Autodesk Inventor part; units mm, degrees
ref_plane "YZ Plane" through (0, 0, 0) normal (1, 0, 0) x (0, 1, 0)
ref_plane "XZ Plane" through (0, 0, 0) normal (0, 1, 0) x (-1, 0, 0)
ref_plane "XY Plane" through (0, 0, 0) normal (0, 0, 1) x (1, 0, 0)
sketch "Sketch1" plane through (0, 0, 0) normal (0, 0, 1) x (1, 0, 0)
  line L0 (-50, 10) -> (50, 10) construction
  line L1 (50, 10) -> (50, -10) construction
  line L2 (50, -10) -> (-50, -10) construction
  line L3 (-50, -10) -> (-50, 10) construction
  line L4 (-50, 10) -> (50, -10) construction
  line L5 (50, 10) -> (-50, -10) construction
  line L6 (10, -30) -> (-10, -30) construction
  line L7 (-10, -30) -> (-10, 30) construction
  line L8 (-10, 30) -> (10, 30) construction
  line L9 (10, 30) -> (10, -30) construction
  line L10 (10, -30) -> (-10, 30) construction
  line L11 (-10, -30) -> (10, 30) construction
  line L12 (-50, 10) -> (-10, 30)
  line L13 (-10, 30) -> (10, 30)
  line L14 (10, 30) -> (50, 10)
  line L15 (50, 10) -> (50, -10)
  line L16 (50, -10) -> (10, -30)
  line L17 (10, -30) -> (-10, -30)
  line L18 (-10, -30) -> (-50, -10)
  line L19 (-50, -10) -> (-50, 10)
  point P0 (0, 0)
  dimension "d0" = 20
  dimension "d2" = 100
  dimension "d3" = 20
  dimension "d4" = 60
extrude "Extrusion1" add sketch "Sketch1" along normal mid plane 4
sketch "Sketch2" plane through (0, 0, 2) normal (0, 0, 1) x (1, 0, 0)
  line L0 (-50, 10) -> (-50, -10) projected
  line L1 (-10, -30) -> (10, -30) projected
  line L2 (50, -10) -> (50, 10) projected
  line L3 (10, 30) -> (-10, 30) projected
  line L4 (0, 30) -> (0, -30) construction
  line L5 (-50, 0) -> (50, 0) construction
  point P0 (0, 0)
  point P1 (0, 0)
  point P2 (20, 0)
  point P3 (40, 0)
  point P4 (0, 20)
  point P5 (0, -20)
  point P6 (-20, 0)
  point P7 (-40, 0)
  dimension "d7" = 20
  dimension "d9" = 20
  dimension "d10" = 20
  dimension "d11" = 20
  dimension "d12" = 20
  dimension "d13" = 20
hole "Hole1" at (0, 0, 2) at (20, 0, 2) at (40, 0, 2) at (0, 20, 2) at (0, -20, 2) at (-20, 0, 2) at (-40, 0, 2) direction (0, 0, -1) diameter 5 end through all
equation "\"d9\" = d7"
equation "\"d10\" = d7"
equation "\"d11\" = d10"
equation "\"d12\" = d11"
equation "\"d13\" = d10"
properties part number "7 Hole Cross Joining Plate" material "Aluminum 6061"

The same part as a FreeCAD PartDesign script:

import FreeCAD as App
import Part
import Sketcher
from FreeCAD import Vector

doc = App.newDocument("Part")
params = doc.addObject("Spreadsheet::Sheet", "Params")
for row, (alias, value) in enumerate([
    ("sketch1_width", "20 mm"),
    ("pad1_length", "4 mm"),
    ("sketch2_diameter", "5 mm"),
    ("hole_diameter", "5 mm"),
], start=1):
    params.set(f"A{row}", alias)
    params.set(f"B{row}", "=" + value)
    params.setAlias(f"B{row}", alias)

body = doc.addObject("PartDesign::Body", "Body")

sketch1 = body.newObject("Sketcher::SketchObject", "Sketch")
sketch1.AttachmentSupport = (doc.getObject("XY_Plane"), [""])
sketch1.MapMode = "FlatFace"
sketch1.addGeometry([
    Part.LineSegment(Vector(-10, 30, 0), Vector(-50, 10, 0)),
    Part.LineSegment(Vector(-50, 10, 0), Vector(-50, -10, 0)),
    Part.LineSegment(Vector(-50, -10, 0), Vector(-10, -30, 0)),
    Part.LineSegment(Vector(-10, -30, 0), Vector(10, -30, 0)),
    Part.LineSegment(Vector(10, -30, 0), Vector(50, -10, 0)),
    Part.LineSegment(Vector(50, -10, 0), Vector(50, 10, 0)),
    Part.LineSegment(Vector(50, 10, 0), Vector(10, 30, 0)),
    Part.LineSegment(Vector(10, 30, 0), Vector(-10, 30, 0)),
], False)
sketch1.addConstraint([
    Sketcher.Constraint("Coincident", 0, 2, 1, 1),
    Sketcher.Constraint("Coincident", 1, 2, 2, 1),
    Sketcher.Constraint("Coincident", 2, 2, 3, 1),
    Sketcher.Constraint("Coincident", 3, 2, 4, 1),
    Sketcher.Constraint("Coincident", 4, 2, 5, 1),
    Sketcher.Constraint("Coincident", 5, 2, 6, 1),
    Sketcher.Constraint("Coincident", 6, 2, 7, 1),
    Sketcher.Constraint("Coincident", 7, 2, 0, 1),
    Sketcher.Constraint("Vertical", 1),
    Sketcher.Constraint("Horizontal", 3),
    Sketcher.Constraint("Vertical", 5),
    Sketcher.Constraint("Horizontal", 7),
    Sketcher.Constraint("Symmetric", 0, 2, 4, 2, -1, 1),
    Sketcher.Constraint("Symmetric", 2, 2, 6, 2, -1, 1),
    Sketcher.Constraint("Parallel", 0, 4),
    Sketcher.Constraint("Parallel", 2, 6),
    Sketcher.Constraint("Horizontal", 1, 2, 4, 2),
    Sketcher.Constraint("Vertical", 3, 2, 6, 2),
    Sketcher.Constraint("Equal", 7, 1),
    Sketcher.Constraint("DistanceX", 3, 1, 3, 2, 20.0),
    Sketcher.Constraint("DistanceY", 2, 2, 1, 2, 20.0),
    Sketcher.Constraint("DistanceX", 1, 2, 3, 2, 60.0),
])
sketch1.setExpression("Constraints[19]", "Params.sketch1_width")
pad1 = body.newObject("PartDesign::Pad", "Pad")
pad1.Profile = sketch1
pad1.setExpression("Length", "Params.pad1_length")
pad1.Midplane = True

sketch2 = body.newObject("Sketcher::SketchObject", "Sketch001")
sketch2.AttachmentSupport = (doc.getObject("XY_Plane"), [""])
sketch2.MapMode = "FlatFace"
sketch2.AttachmentOffset = App.Placement(Vector(0, 0, 2), App.Rotation())
sketch2.addGeometry([
    Part.Circle(Vector(0, 0, 0), Vector(0, 0, 1), 2.5),
    Part.Circle(Vector(20, 0, 0), Vector(0, 0, 1), 2.5),
    Part.Circle(Vector(40, 0, 0), Vector(0, 0, 1), 2.5),
    Part.Circle(Vector(0, 20, 0), Vector(0, 0, 1), 2.5),
    Part.Circle(Vector(0, -20, 0), Vector(0, 0, 1), 2.5),
    Part.Circle(Vector(-20, 0, 0), Vector(0, 0, 1), 2.5),
    Part.Circle(Vector(-40, 0, 0), Vector(0, 0, 1), 2.5),
], False)
sketch2.addConstraint([
    Sketcher.Constraint("Coincident", 0, 3, -1, 1),
    Sketcher.Constraint("Equal", 0, 1),
    Sketcher.Constraint("Equal", 1, 2),
    Sketcher.Constraint("Equal", 2, 3),
    Sketcher.Constraint("Equal", 3, 4),
    Sketcher.Constraint("Equal", 4, 5),
    Sketcher.Constraint("Equal", 5, 6),
    Sketcher.Constraint("Symmetric", 3, 3, 4, 3, -1, 1),
    Sketcher.Constraint("Symmetric", 1, 3, 5, 3, -1, 1),
    Sketcher.Constraint("Symmetric", 2, 3, 6, 3, -1, 1),
    Sketcher.Constraint("PointOnObject", 1, 3, -1),
    Sketcher.Constraint("PointOnObject", 2, 3, -1),
    Sketcher.Constraint("PointOnObject", 3, 3, -2),
    Sketcher.Constraint("Diameter", 0, 5.0),
    Sketcher.Constraint("DistanceX", -1, 1, 1, 3, 20.0),
    Sketcher.Constraint("DistanceX", -1, 1, 2, 3, 40.0),
    Sketcher.Constraint("DistanceY", -1, 1, 3, 3, 20.0),
])
sketch2.setExpression("Constraints[13]", "Params.sketch2_diameter")
doc.recompute()
hole = body.newObject("PartDesign::Hole", "Hole")
hole.Profile = sketch2
hole.ThreadType = "None"
hole.setExpression("Diameter", "Params.hole_diameter")
hole.DepthType = "ThroughAll"

doc.recompute()
